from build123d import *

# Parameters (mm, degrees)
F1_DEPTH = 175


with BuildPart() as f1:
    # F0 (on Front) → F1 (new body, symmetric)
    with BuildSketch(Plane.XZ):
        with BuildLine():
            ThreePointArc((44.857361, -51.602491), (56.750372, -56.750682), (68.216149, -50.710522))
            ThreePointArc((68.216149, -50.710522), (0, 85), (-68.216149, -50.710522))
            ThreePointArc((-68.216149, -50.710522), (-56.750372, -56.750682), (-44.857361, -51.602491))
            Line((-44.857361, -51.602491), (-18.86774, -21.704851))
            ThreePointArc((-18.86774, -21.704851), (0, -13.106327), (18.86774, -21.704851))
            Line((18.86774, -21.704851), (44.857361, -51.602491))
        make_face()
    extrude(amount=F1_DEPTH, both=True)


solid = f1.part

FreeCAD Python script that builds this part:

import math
import FreeCAD as App
import Part
import Sketcher
from FreeCAD import Vector
Q = App.Units.Quantity

doc = App.newDocument("Part")
body = doc.addObject("PartDesign::Body", "Body")

sketch1 = body.newObject("Sketcher::SketchObject", "Sketch")
sketch1.AttachmentSupport = (doc.getObject("XZ_Plane"), [""])
sketch1.MapMode = "FlatFace"
sketch1.addGeometry(Part.ArcOfCircle(Part.Circle(Vector(56.178005, -41.761606, 0), Vector(0, 0, 1), 15), math.radians(-139.000003), math.radians(-36.626377)), False)
sketch1.addGeometry(Part.ArcOfCircle(Part.Circle(Vector(0, 0, 0), Vector(0, 0, 1), 85), math.radians(-36.626375), math.radians(216.626375)), False)
sketch1.addGeometry(Part.ArcOfCircle(Part.Circle(Vector(-56.178005, -41.761606, 0), Vector(0, 0, 1), 15), math.radians(-143.373623), math.radians(-40.999997)), False)
sketch1.addGeometry(Part.LineSegment(Vector(-44.857361, -51.602491, 0), Vector(-18.86774, -21.704851, 0)), False)
sketch1.addGeometry(Part.ArcOfCircle(Part.Circle(Vector(0, -38.106329, 0), Vector(0, 0, 1), 25.000002), math.radians(41.000003), math.radians(138.999997)), False)
sketch1.addGeometry(Part.LineSegment(Vector(18.86774, -21.704851, 0), Vector(44.857361, -51.602491, 0)), False)
sketch1.addConstraint(Sketcher.Constraint("Tangent", 0, 2, 1, 1))
sketch1.addConstraint(Sketcher.Constraint("Tangent", 1, 2, 2, 1))
sketch1.addConstraint(Sketcher.Constraint("Tangent", 2, 2, 3, 1))
sketch1.addConstraint(Sketcher.Constraint("Tangent", 3, 2, 4, 2))
sketch1.addConstraint(Sketcher.Constraint("Tangent", 4, 1, 5, 1))
sketch1.addConstraint(Sketcher.Constraint("Tangent", 5, 2, 0, 1))
sketch1.addConstraint(Sketcher.Constraint("Coincident", 1, 3, -1, 1))
sketch1.addConstraint(Sketcher.Constraint("Equal", 0, 2))
sketch1.addConstraint(Sketcher.Constraint("Symmetric", 3, 2, 4, 1, -2))
sketch1.addConstraint(Sketcher.Constraint("Radius", 0, 15.0))
sketch1.addConstraint(Sketcher.Constraint("Radius", 1, 85.0))
sketch1.addConstraint(Sketcher.Constraint("Radius", 4, 25.000002))
sketch1.addConstraint(Sketcher.Constraint("Angle", 3, Q("49.000001 deg")))
sketch1.addConstraint(Sketcher.Constraint("Distance", 3, 39.614761))
pad1 = body.newObject("PartDesign::Pad", "Pad")
pad1.Profile = sketch1
pad1.Length = 350
pad1.Midplane = True

doc.recompute()
